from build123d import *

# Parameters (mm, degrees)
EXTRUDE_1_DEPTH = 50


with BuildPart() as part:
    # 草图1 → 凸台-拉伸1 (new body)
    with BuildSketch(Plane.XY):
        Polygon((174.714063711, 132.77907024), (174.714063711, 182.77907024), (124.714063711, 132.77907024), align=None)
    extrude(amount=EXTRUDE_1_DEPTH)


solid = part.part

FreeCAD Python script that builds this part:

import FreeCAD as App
import Part
import Sketcher

V = App.Vector

doc = App.newDocument("Part")
params = doc.addObject("Spreadsheet::Sheet", "Params")
for row, (alias, value) in enumerate([
    ("sketch1_width", "50 mm"),
    ("pad1_length", "50 mm"),
], start=1):
    params.set(f"A{row}", alias)
    params.set(f"B{row}", "=" + value)
    params.setAlias(f"B{row}", alias)

body = doc.addObject("PartDesign::Body", "Body")

# Sketch on XY plane
sketch1 = body.newObject("Sketcher::SketchObject", "Sketch")
sketch1.AttachmentSupport = (doc.getObject("XY_Plane"), [""])
sketch1.MapMode = "FlatFace"
sketch1.addGeometry(Part.LineSegment(V(175, 133, 0), V(175, 183, 0)), False)
sketch1.addGeometry(Part.LineSegment(V(175, 183, 0), V(125, 133, 0)), False)
sketch1.addGeometry(Part.LineSegment(V(125, 133, 0), V(175, 133, 0)), False)
sketch1.addConstraint(Sketcher.Constraint("Coincident", 0, 2, 1, 1))
sketch1.addConstraint(Sketcher.Constraint("Coincident", 1, 2, 2, 1))
sketch1.addConstraint(Sketcher.Constraint("Coincident", 2, 2, 0, 1))
sketch1.addConstraint(Sketcher.Constraint("Vertical", 0))
sketch1.addConstraint(Sketcher.Constraint("Horizontal", 2))
sketch1.addConstraint(Sketcher.Constraint("Equal", 2, 0))
sketch1.addConstraint(Sketcher.Constraint("DistanceX", 2, 1, 2, 2, 50.0))
sketch1.addConstraint(Sketcher.Constraint("DistanceY", -1, 1, 0, 2, 182.77907))
sketch1.addConstraint(Sketcher.Constraint("DistanceX", -1, 1, 0, 2, 174.714064))
sketch1.setExpression("Constraints[6]", "Params.sketch1_width")
pad1 = body.newObject("PartDesign::Pad", "Pad")
pad1.Profile = sketch1
pad1.setExpression("Length", "Params.pad1_length")

doc.recompute()
